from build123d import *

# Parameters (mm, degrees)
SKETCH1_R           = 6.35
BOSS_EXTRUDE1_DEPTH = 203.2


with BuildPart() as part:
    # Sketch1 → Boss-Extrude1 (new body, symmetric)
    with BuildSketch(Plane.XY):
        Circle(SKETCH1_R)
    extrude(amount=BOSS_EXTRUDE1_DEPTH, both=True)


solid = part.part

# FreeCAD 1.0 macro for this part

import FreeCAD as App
import Part
import Sketcher
from FreeCAD import Vector
Q = App.Units.Quantity

doc = App.newDocument("Part")
params = doc.addObject("Spreadsheet::Sheet", "Params")
for row, (alias, value) in enumerate([
    ("sketch1_diameter", "0.5 in"),
    ("pad1_length", "16 in"),
], start=1):
    params.set(f"A{row}", alias)
    params.set(f"B{row}", "=" + value)
    params.setAlias(f"B{row}", alias)

body = doc.addObject("PartDesign::Body", "Body")

# Sketch on XY plane
sketch1 = doc.addObject("Sketcher::SketchObject", "Sketch")
body.addObject(sketch1)
sketch1.AttachmentSupport = (doc.XY_Plane, [""])
sketch1.MapMode = "FlatFace"
sketch1.addGeometry(Part.Circle(Vector(0, 0, 0), Vector(0, 0, 1), 6), False)
sketch1.addConstraint([
    Sketcher.Constraint("Coincident", 0, 3, -1, 1),
    Sketcher.Constraint("Diameter", 0, Q("0.5 in")),
])
sketch1.setExpression("Constraints[1]", "Params.sketch1_diameter")
pad1 = doc.addObject("PartDesign::Pad", "Pad")
body.addObject(pad1)
pad1.Profile = sketch1
pad1.setExpression("Length", "Params.pad1_length")
pad1.Midplane = True

doc.recompute()
